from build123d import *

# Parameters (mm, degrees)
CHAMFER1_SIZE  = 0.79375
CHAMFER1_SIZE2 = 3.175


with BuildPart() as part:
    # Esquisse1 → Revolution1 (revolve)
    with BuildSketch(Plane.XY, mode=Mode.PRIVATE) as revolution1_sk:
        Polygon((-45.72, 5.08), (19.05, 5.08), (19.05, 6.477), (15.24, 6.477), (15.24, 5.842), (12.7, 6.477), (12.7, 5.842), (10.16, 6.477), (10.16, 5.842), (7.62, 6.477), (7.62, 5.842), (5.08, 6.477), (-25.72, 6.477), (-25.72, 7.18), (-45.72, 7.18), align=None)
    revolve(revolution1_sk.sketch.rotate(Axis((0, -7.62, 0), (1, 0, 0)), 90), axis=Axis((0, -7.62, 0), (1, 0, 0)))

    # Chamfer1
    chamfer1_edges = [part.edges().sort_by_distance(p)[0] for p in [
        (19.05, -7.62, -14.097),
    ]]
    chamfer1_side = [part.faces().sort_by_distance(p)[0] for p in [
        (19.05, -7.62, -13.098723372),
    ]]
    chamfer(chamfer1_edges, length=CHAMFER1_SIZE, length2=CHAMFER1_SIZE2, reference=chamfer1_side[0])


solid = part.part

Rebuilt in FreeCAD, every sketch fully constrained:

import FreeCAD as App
import Part
import Sketcher
Q = App.Units.Quantity


def edges_at(feature, points):
    """Names of the edges that pass closest to the given points."""
    edges = feature.Shape.Edges
    near = lambda p: min(range(len(edges)), key=lambda i: edges[i].distToShape(Part.Vertex(*p))[0])
    return sorted({f"Edge{near(p) + 1}" for p in points})


def add_polygon(sketch, points):
    """Adds a closed chain of lines whose ends are joined by coincident constraints."""
    first, n = sketch.GeometryCount, len(points)
    for a, b in zip(points, points[1:] + points[:1]):
        sketch.addGeometry(Part.LineSegment(App.Vector(*a, 0), App.Vector(*b, 0)), False)
    for i in range(n):
        sketch.addConstraint(Sketcher.Constraint("Coincident", first + i, 2, first + (i + 1) % n, 1))

doc = App.newDocument("Part")
body = doc.addObject("PartDesign::Body", "Body")

sketch1 = body.newObject("Sketcher::SketchObject", "Sketch")
sketch1.AttachmentSupport = (doc.getObject("XY_Plane"), [""])
sketch1.MapMode = "FlatFace"
add_polygon(sketch1, [(-45.7, 5.1), (19.1, 5.1), (19.1, 6.5), (15.2, 6.5), (15.2, 5.8), (12.7, 6.5), (12.7, 5.8), (10.2, 6.5), (10.2, 5.8), (7.6, 6.5), (7.6, 5.8), (5.1, 6.5), (-25.7, 6.5), (-25.7, 7.2), (-45.7, 7.2)])
sketch1.addGeometry(Part.LineSegment(App.Vector(-45.7, -7.6, 0), App.Vector(19.1, -7.6, 0)), True)
sketch1.addConstraint([
    Sketcher.Constraint("Horizontal", 0),
    Sketcher.Constraint("Vertical", 1),
    Sketcher.Constraint("Horizontal", 2),
    Sketcher.Constraint("Vertical", 3),
    Sketcher.Constraint("Vertical", 5),
    Sketcher.Constraint("Vertical", 7),
    Sketcher.Constraint("Vertical", 9),
    Sketcher.Constraint("Horizontal", 11),
    Sketcher.Constraint("Vertical", 12),
    Sketcher.Constraint("Horizontal", 13),
    Sketcher.Constraint("Vertical", 14),
    Sketcher.Constraint("Horizontal", 15),
    Sketcher.Constraint("Parallel", 4, 6),
    Sketcher.Constraint("Parallel", 6, 8),
    Sketcher.Constraint("Parallel", 8, 10),
    Sketcher.Constraint("Horizontal", 2, 2, 4, 2),
    Sketcher.Constraint("Horizontal", 3, 2, 5, 2),
    Sketcher.Constraint("Horizontal", 4, 2, 6, 2),
    Sketcher.Constraint("Horizontal", 5, 2, 7, 2),
    Sketcher.Constraint("Horizontal", 6, 2, 8, 2),
    Sketcher.Constraint("Horizontal", 7, 2, 9, 2),
    Sketcher.Constraint("Horizontal", 8, 2, 10, 2),
    Sketcher.Constraint("Vertical", 14, 2, 15, 1),
    Sketcher.Constraint("Vertical", 1, 2, 15, 2),
    Sketcher.Constraint("DistanceX", 13, 2, 10, 2, Q("2 in")),
    Sketcher.Constraint("DistanceX", 0, 1, 0, 2, Q("2.55 in")),
    Sketcher.Constraint("DistanceX", 2, 2, 2, 1, Q("0.15 in")),
    Sketcher.Constraint("DistanceY", -1, 1, 0, 2, Q("0.2 in")),
    Sketcher.Constraint("DistanceX", -1, 1, 2, 2, Q("0.6 in")),
    Sketcher.Constraint("DistanceY", 15, 1, -1, 1, Q("0.3 in")),
    Sketcher.Constraint("DistanceY", 1, 1, 1, 2, Q("0.055 in")),
    Sketcher.Constraint("DistanceY", 3, 2, 3, 1, Q("0.025 in")),
    Sketcher.Constraint("DistanceX", 11, 2, 11, 1, 30.8),
    Sketcher.Constraint("DistanceY", 12, 1, 12, 2, 0.703),
])
revolution = body.newObject("PartDesign::Revolution", "Revolution")
revolution.Profile = sketch1
revolution.ReferenceAxis = (sketch1, ["Axis0"])
revolution.Angle = 360
doc.recompute()

chamfer = body.newObject("PartDesign::Chamfer", "Chamfer")
chamfer.Base = (revolution, edges_at(revolution, [(19.05, -7.62, -14.097)]))
chamfer.ChamferType = "Two distances"
chamfer.Size = Q("0.03125 in")
chamfer.Size2 = Q("0.125 in")

doc.recompute()
